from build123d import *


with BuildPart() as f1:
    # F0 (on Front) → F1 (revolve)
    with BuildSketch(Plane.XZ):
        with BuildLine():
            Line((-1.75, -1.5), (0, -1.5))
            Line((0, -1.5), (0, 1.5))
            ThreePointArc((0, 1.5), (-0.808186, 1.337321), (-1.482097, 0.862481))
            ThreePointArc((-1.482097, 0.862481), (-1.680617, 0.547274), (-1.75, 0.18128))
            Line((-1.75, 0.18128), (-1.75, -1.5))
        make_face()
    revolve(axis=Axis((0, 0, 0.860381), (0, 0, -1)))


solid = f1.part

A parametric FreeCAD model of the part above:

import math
import FreeCAD as App
import Part
import Sketcher

V = App.Vector
Q = App.Units.Quantity

doc = App.newDocument("Part")
body = doc.addObject("PartDesign::Body", "Body")

# Sketch on XZ plane
sketch1 = doc.addObject("Sketcher::SketchObject", "Sketch")
body.addObject(sketch1)
sketch1.AttachmentSupport = (doc.XZ_Plane, [""])
sketch1.MapMode = "FlatFace"
sketch1.addGeometry(Part.LineSegment(V(-1.8, -1.5, 0), V(0, -1.5, 0)), False)
sketch1.addGeometry(Part.LineSegment(V(0, -1.5, 0), V(0, 1.5, 0)), False)
sketch1.addGeometry(Part.ArcOfCircle(Part.Circle(V(0, -0.5, 0), V(0, 0, 1), 2), math.radians(89), math.radians(137)), False)
sketch1.addGeometry(Part.ArcOfCircle(Part.Circle(V(-0.7, 0.2, 0), V(0, 0, 1), 1), math.radians(137), math.radians(180)), False)
sketch1.addGeometry(Part.LineSegment(V(-1.8, 0.2, 0), V(-1.8, -1.5, 0)), False)
sketch1.addConstraint(Sketcher.Constraint("Coincident", 0, 2, 1, 1))
sketch1.addConstraint(Sketcher.Constraint("Coincident", 1, 2, 2, 1))
sketch1.addConstraint(Sketcher.Constraint("Tangent", 2, 2, 3, 1))
sketch1.addConstraint(Sketcher.Constraint("Tangent", 3, 2, 4, 1))
sketch1.addConstraint(Sketcher.Constraint("Coincident", 4, 2, 0, 1))
sketch1.addConstraint(Sketcher.Constraint("Horizontal", 0))
sketch1.addConstraint(Sketcher.Constraint("Vertical", 1))
sketch1.addConstraint(Sketcher.Constraint("Vertical", 4))
sketch1.addConstraint(Sketcher.Constraint("Symmetric", 0, 2, 1, 2, -1, 1))
sketch1.addConstraint(Sketcher.Constraint("DistanceY", 1, 1, 1, 2, Q("3 mm")))
sketch1.addConstraint(Sketcher.Constraint("DistanceX", 0, 1, 0, 2, Q("1.75 mm")))
sketch1.addConstraint(Sketcher.Constraint("Radius", 2, Q("1.999997 mm")))
sketch1.addConstraint(Sketcher.Constraint("Radius", 3, Q("1.000006 mm")))
sketch1.addConstraint(Sketcher.Constraint("DistanceY", 4, 2, 4, 1, Q("1.68128 mm")))
revolution = doc.addObject("PartDesign::Revolution", "Revolution")
body.addObject(revolution)
revolution.Profile = sketch1
revolution.ReferenceAxis = (sketch1, ["V_Axis"])
revolution.Angle = 360

doc.recompute()
